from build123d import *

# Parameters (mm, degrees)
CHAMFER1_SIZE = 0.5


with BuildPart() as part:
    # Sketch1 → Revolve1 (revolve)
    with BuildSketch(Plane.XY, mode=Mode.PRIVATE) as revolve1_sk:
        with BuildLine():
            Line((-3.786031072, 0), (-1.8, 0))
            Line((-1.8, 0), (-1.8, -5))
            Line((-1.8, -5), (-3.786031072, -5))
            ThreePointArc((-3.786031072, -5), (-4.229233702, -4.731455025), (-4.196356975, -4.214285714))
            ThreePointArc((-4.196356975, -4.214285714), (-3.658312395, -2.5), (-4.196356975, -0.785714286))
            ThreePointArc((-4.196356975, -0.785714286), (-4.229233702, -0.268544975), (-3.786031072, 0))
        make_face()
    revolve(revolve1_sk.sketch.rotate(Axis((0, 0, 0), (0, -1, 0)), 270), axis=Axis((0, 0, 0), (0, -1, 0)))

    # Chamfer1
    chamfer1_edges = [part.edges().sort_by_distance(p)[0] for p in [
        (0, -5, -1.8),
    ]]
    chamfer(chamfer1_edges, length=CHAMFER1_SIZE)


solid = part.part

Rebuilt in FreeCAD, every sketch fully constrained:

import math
import FreeCAD as App
import Part
import Sketcher

V = App.Vector
Q = App.Units.Quantity


def edges_at(feature, points):
    """Names of the edges that pass closest to the given points."""
    edges = feature.Shape.Edges
    near = lambda p: min(range(len(edges)), key=lambda i: edges[i].distToShape(Part.Vertex(*p))[0])
    return sorted({f"Edge{near(p) + 1}" for p in points})

doc = App.newDocument("Part")
body = doc.addObject("PartDesign::Body", "Body")

# Sketch on XY plane
sketch1 = body.newObject("Sketcher::SketchObject", "Sketch")
sketch1.AttachmentSupport = (doc.getObject("XY_Plane"), [""])
sketch1.MapMode = "FlatFace"
sketch1.addGeometry([
    Part.LineSegment(V(-1.8, 0, 0), V(-3.786031, 0, 0)),  # 0
    Part.ArcOfCircle(Part.Circle(V(-3.786031, -0.5, 0), V(0, 0, 1), 0.5), math.radians(90), math.radians(214.849905)),  # 1
    Part.ArcOfCircle(Part.Circle(V(-6.658312, -2.5, 0), V(0, 0, 1), 3), math.radians(-34.849905), math.radians(34.849905)),  # 2
    Part.ArcOfCircle(Part.Circle(V(-3.786031, -4.5, 0), V(0, 0, 1), 0.5), math.radians(145.150095), math.radians(270)),  # 3
    Part.LineSegment(V(-3.786031, -5, 0), V(-1.8, -5, 0)),  # 4
    Part.LineSegment(V(-1.8, -5, 0), V(-1.8, 0, 0)),  # 5
], False)
sketch1.addConstraint([
    Sketcher.Constraint("Tangent", 0, 2, 1, 1),
    Sketcher.Constraint("Tangent", 1, 2, 2, 2),
    Sketcher.Constraint("Tangent", 2, 1, 3, 1),
    Sketcher.Constraint("Tangent", 3, 2, 4, 1),
    Sketcher.Constraint("Coincident", 4, 2, 5, 1),
    Sketcher.Constraint("Coincident", 5, 2, 0, 1),
    Sketcher.Constraint("Horizontal", 0),
    Sketcher.Constraint("Horizontal", 4),
    Sketcher.Constraint("Vertical", 5),
    Sketcher.Constraint("Equal", 1, 3),
    Sketcher.Constraint("PointOnObject", 0, 2, -1),
    Sketcher.Constraint("Vertical", 1, 3, 3, 3),
    Sketcher.Constraint("Radius", 2, Q("3 mm")),
    Sketcher.Constraint("Radius", 1, Q("0.5 mm")),
    Sketcher.Constraint("DistanceY", 5, 1, 5, 2, Q("5 mm")),
    Sketcher.Constraint("DistanceX", 4, 2, -1, 1, Q("1.8 mm")),
    Sketcher.Constraint("DistanceX", 0, 2, 0, 1, Q("1.986031 mm")),
])
revolution = body.newObject("PartDesign::Revolution", "Revolution")
revolution.Profile = sketch1
revolution.ReferenceAxis = (sketch1, ["V_Axis"])
revolution.Angle = 360
doc.recompute()

chamfer = body.newObject("PartDesign::Chamfer", "Chamfer")
chamfer.Base = (revolution, edges_at(revolution, [(0, -5, -1.8)]))
chamfer.Size = 0.5

doc.recompute()
